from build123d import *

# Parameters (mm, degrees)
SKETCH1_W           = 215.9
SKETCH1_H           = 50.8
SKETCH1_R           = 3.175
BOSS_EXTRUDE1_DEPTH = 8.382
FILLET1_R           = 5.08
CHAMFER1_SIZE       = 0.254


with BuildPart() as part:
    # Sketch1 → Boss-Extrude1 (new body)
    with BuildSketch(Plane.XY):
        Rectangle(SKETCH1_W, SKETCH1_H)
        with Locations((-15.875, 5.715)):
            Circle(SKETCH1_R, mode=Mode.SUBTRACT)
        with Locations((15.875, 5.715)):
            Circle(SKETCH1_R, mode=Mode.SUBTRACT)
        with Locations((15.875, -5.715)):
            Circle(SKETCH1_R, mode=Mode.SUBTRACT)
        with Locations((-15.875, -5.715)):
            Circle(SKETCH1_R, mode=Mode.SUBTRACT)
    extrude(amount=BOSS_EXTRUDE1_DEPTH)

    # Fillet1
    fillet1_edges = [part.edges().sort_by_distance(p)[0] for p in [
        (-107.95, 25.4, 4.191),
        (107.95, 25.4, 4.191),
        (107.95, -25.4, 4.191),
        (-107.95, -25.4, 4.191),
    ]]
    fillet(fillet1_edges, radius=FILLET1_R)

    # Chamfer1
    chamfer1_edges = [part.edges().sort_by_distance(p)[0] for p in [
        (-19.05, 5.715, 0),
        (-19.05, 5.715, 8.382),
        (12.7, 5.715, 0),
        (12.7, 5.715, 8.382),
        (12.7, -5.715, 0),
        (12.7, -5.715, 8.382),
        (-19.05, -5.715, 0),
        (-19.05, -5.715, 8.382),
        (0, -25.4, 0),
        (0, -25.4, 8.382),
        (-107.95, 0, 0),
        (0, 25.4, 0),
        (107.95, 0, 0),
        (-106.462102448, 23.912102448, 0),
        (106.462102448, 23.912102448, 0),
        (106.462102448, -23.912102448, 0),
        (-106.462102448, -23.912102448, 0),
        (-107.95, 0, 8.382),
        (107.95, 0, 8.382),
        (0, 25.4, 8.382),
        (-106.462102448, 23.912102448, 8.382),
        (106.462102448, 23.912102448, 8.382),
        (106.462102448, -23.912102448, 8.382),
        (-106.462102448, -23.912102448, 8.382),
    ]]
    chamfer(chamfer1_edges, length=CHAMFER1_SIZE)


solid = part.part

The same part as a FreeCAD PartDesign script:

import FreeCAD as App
import Part
import Sketcher
Q = App.Units.Quantity


def edges_at(feature, points):
    """Names of the edges that pass closest to the given points."""
    edges = feature.Shape.Edges
    near = lambda p: min(range(len(edges)), key=lambda i: edges[i].distToShape(Part.Vertex(*p))[0])
    return sorted({f"Edge{near(p) + 1}" for p in points})


def add_polygon(sketch, points):
    """Adds a closed chain of lines whose ends are joined by coincident constraints."""
    first, n = sketch.GeometryCount, len(points)
    for a, b in zip(points, points[1:] + points[:1]):
        sketch.addGeometry(Part.LineSegment(App.Vector(*a, 0), App.Vector(*b, 0)), False)
    for i in range(n):
        sketch.addConstraint(Sketcher.Constraint("Coincident", first + i, 2, first + (i + 1) % n, 1))

doc = App.newDocument("Part")
body = doc.addObject("PartDesign::Body", "Body")

sketch1 = body.newObject("Sketcher::SketchObject", "Sketch")
sketch1.AttachmentSupport = (doc.getObject("XY_Plane"), [""])
sketch1.MapMode = "FlatFace"
add_polygon(sketch1, [(-107.95, 25.4), (-107.95, -25.4), (107.95, -25.4), (107.95, 25.4)])
sketch1.addGeometry(Part.Circle(App.Vector(-15.875, -5.715, 0), App.Vector(0, 0, 1), 3.175), False)
sketch1.addGeometry(Part.Circle(App.Vector(15.875, -5.715, 0), App.Vector(0, 0, 1), 3.175), False)
sketch1.addGeometry(Part.Circle(App.Vector(-15.875, 5.715, 0), App.Vector(0, 0, 1), 3.175), False)
sketch1.addGeometry(Part.Circle(App.Vector(15.875, 5.715, 0), App.Vector(0, 0, 1), 3.175), False)
sketch1.addConstraint([
    Sketcher.Constraint("Vertical", 0),
    Sketcher.Constraint("Horizontal", 1),
    Sketcher.Constraint("Vertical", 2),
    Sketcher.Constraint("Horizontal", 3),
    Sketcher.Constraint("Equal", 4, 5),
    Sketcher.Constraint("Equal", 5, 6),
    Sketcher.Constraint("Equal", 6, 7),
    Sketcher.Constraint("Symmetric", 5, 3, 6, 3, -1, 1),
    Sketcher.Constraint("Symmetric", 4, 3, 7, 3, -1, 1),
    Sketcher.Constraint("Symmetric", 0, 2, 2, 2, -1, 1),
    Sketcher.Constraint("Symmetric", 4, 3, 5, 3, -2),
    Sketcher.Constraint("Diameter", 4, Q("0.25 in")),
    Sketcher.Constraint("DistanceY", 0, 2, 0, 1, Q("2 in")),
    Sketcher.Constraint("DistanceX", 1, 1, 1, 2, Q("8.5 in")),
    Sketcher.Constraint("DistanceX", 4, 3, 5, 3, Q("1.25 in")),
    Sketcher.Constraint("DistanceY", 4, 3, 6, 3, Q("0.45 in")),
])
pad1 = body.newObject("PartDesign::Pad", "Pad")
pad1.Profile = sketch1
pad1.Length = Q("0.33 in")
doc.recompute()

fillet = body.newObject("PartDesign::Fillet", "Fillet")
fillet.Base = (pad1, edges_at(pad1, [
    (-107.95, 25.4, 4.191),
    (107.95, 25.4, 4.191),
    (107.95, -25.4, 4.191),
    (-107.95, -25.4, 4.191),
]))
fillet.Radius = Q("0.2 in")
doc.recompute()

chamfer = body.newObject("PartDesign::Chamfer", "Chamfer")
chamfer.Base = (fillet, edges_at(fillet, [
    (-19.05, 5.715, 0),
    (-19.05, 5.715, 8.382),
    (12.7, 5.715, 0),
    (12.7, 5.715, 8.382),
    (12.7, -5.715, 0),
    (12.7, -5.715, 8.382),
    (-19.05, -5.715, 0),
    (-19.05, -5.715, 8.382),
    (0, -25.4, 0),
    (0, -25.4, 8.382),
    (-107.95, 0, 0),
    (0, 25.4, 0),
    (107.95, 0, 0),
    (-106.462, 23.912, 0),
    (106.462, 23.912, 0),
    (106.462, -23.912, 0),
    (-106.462, -23.912, 0),
    (-107.95, 0, 8.382),
    (107.95, 0, 8.382),
    (0, 25.4, 8.382),
    (-106.462, 23.912, 8.382),
    (106.462, 23.912, 8.382),
    (106.462, -23.912, 8.382),
    (-106.462, -23.912, 8.382),
]))
chamfer.Size = Q("0.01 in")

doc.recompute()
